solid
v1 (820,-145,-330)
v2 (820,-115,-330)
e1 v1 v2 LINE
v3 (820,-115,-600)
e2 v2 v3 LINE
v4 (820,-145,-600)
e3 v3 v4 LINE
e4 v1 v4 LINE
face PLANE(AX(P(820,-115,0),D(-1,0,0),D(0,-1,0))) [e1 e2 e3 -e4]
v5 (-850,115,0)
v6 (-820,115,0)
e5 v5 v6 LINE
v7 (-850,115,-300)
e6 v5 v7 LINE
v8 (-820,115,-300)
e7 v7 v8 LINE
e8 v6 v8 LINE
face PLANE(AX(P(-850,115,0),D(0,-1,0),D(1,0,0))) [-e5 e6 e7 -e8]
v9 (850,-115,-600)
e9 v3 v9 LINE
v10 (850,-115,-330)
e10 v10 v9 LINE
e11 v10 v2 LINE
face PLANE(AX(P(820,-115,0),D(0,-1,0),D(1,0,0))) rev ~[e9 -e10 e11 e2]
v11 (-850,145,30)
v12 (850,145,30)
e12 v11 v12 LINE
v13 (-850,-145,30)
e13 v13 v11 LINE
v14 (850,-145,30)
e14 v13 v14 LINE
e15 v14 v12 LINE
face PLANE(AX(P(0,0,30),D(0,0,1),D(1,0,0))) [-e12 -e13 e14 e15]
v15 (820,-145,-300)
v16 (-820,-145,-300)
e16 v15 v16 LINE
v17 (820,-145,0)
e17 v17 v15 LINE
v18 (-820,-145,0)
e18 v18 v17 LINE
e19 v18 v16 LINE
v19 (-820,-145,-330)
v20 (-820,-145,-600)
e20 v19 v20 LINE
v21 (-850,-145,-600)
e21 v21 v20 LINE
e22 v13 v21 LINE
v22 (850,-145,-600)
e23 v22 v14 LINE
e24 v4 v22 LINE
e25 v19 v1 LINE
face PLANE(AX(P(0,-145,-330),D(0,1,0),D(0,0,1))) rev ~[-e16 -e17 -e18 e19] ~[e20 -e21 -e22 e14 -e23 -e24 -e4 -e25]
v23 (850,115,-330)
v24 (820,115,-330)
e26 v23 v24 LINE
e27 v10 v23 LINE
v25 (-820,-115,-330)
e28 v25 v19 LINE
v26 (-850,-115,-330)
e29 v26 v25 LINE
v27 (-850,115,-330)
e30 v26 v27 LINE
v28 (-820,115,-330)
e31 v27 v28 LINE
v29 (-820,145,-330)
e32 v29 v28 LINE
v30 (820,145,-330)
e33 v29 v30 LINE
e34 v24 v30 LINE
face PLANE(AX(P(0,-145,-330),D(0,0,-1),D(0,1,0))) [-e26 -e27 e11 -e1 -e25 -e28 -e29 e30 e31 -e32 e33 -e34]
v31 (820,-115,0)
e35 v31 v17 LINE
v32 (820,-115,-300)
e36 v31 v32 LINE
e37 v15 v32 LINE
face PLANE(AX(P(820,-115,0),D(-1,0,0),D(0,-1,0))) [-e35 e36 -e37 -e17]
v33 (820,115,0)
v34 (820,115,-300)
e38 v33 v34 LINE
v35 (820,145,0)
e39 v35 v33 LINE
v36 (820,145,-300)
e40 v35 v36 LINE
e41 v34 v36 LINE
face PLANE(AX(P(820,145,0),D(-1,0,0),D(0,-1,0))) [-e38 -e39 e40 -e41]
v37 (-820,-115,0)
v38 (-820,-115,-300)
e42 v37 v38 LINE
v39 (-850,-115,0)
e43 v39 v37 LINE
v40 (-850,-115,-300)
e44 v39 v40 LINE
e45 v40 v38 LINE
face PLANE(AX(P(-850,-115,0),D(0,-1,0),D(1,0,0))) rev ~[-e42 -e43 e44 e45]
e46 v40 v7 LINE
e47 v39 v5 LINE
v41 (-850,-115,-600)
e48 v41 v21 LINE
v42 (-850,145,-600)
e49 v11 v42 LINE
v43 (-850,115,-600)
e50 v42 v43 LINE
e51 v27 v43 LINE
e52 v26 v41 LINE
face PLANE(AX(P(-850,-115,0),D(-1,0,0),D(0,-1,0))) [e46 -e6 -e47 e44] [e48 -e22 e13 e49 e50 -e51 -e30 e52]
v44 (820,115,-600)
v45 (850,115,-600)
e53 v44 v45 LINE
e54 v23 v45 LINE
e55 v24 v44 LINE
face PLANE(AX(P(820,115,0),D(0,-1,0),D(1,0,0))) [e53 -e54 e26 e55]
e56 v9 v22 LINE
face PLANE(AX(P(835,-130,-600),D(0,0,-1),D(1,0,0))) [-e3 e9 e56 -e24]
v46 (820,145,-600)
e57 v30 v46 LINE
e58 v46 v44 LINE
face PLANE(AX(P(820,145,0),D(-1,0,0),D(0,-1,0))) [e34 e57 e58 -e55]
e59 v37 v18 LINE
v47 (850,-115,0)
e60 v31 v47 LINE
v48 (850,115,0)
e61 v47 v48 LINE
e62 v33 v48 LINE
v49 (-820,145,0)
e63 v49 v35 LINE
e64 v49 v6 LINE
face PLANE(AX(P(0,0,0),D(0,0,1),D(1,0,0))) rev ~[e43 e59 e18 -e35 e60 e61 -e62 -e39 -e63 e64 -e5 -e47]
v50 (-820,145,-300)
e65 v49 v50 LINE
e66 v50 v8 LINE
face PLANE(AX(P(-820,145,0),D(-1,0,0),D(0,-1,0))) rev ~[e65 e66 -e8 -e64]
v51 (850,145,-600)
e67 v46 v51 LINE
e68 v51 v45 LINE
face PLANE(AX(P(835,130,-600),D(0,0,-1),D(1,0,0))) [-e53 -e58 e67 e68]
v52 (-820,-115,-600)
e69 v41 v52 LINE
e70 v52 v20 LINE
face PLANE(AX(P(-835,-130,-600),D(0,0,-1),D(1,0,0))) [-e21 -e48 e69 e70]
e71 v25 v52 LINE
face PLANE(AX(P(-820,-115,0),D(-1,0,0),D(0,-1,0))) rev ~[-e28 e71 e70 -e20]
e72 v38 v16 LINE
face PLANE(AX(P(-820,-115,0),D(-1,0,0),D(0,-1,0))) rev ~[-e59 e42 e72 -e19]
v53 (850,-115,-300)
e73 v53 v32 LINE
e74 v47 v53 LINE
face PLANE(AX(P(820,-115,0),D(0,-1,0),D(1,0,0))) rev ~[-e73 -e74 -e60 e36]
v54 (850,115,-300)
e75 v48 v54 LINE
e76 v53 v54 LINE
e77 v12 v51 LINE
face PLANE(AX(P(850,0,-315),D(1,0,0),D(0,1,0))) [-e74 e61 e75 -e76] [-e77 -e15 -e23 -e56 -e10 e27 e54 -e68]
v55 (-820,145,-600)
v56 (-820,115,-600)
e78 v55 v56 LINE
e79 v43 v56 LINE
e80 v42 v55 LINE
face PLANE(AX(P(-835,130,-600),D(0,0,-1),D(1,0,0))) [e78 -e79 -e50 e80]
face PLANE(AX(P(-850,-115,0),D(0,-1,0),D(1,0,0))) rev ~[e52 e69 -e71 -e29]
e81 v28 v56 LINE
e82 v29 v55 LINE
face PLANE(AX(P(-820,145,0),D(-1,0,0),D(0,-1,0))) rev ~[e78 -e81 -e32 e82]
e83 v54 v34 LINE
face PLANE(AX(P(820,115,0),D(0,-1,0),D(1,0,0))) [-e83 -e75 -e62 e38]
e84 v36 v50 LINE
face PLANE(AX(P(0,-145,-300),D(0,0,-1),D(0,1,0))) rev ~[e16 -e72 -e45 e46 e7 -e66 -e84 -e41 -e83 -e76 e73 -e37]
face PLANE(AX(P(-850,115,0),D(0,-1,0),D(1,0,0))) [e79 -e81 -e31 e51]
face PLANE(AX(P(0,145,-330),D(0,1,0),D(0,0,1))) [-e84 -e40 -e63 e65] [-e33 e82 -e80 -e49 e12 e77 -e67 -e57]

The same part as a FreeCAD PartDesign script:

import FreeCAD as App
import Part
import Sketcher
from FreeCAD import Vector

doc = App.newDocument("Part")
params = doc.addObject("Spreadsheet::Sheet", "Params")
for row, (alias, value) in enumerate([
    ("sketch1_width", "1700 mm"),
    ("sketch1_height", "290 mm"),
    ("pad1_length", "30 mm"),
    ("sketch2_width", "30 mm"),
    ("pad2_length", "600 mm"),
    ("sketch3_width", "290 mm"),
    ("sketch3_height", "30 mm"),
    ("pad3_length", "850 mm"),
    ("pad3_length2", "850 mm"),
], start=1):
    params.set(f"A{row}", alias)
    params.set(f"B{row}", "=" + value)
    params.setAlias(f"B{row}", alias)

body = doc.addObject("PartDesign::Body", "Body")

# Sketch on XY plane
sketch1 = body.newObject("Sketcher::SketchObject", "Sketch")
sketch1.AttachmentSupport = (doc.getObject("XY_Plane"), [""])
sketch1.MapMode = "FlatFace"
sketch1.addGeometry(Part.LineSegment(Vector(-850, 145, 0), Vector(-850, -145, 0)), False)
sketch1.addGeometry(Part.LineSegment(Vector(-850, -145, 0), Vector(850, -145, 0)), False)
sketch1.addGeometry(Part.LineSegment(Vector(850, -145, 0), Vector(850, 145, 0)), False)
sketch1.addGeometry(Part.LineSegment(Vector(850, 145, 0), Vector(-850, 145, 0)), False)
sketch1.addConstraint(Sketcher.Constraint("Coincident", 0, 2, 1, 1))
sketch1.addConstraint(Sketcher.Constraint("Coincident", 1, 2, 2, 1))
sketch1.addConstraint(Sketcher.Constraint("Coincident", 2, 2, 3, 1))
sketch1.addConstraint(Sketcher.Constraint("Coincident", 3, 2, 0, 1))
sketch1.addConstraint(Sketcher.Constraint("Vertical", 0))
sketch1.addConstraint(Sketcher.Constraint("Horizontal", 1))
sketch1.addConstraint(Sketcher.Constraint("Vertical", 2))
sketch1.addConstraint(Sketcher.Constraint("Horizontal", 3))
sketch1.addConstraint(Sketcher.Constraint("Symmetric", 0, 2, 2, 2, -1, 1))
sketch1.addConstraint(Sketcher.Constraint("DistanceX", 1, 1, 1, 2, 1700.0))
sketch1.addConstraint(Sketcher.Constraint("DistanceY", 0, 2, 0, 1, 290.0))
sketch1.setExpression("Constraints[9]", "Params.sketch1_width")
sketch1.setExpression("Constraints[10]", "Params.sketch1_height")
pad1 = body.newObject("PartDesign::Pad", "Pad")
pad1.Profile = sketch1
pad1.setExpression("Length", "Params.pad1_length")

# Sketch on XY plane
sketch2 = body.newObject("Sketcher::SketchObject", "Sketch001")
sketch2.AttachmentSupport = (doc.getObject("XY_Plane"), [""])
sketch2.MapMode = "FlatFace"
sketch2.addGeometry(Part.LineSegment(Vector(-850, -145, 0), Vector(-850, -115, 0)), False)
sketch2.addGeometry(Part.LineSegment(Vector(-850, -115, 0), Vector(-820, -115, 0)), False)
sketch2.addGeometry(Part.LineSegment(Vector(-820, -115, 0), Vector(-820, -145, 0)), False)
sketch2.addGeometry(Part.LineSegment(Vector(-820, -145, 0), Vector(-850, -145, 0)), False)
sketch2.addGeometry(Part.LineSegment(Vector(820, -145, 0), Vector(820, -115, 0)), False)
sketch2.addGeometry(Part.LineSegment(Vector(820, -115, 0), Vector(850, -115, 0)), False)
sketch2.addGeometry(Part.LineSegment(Vector(850, -115, 0), Vector(850, -145, 0)), False)
sketch2.addGeometry(Part.LineSegment(Vector(850, -145, 0), Vector(820, -145, 0)), False)
sketch2.addGeometry(Part.LineSegment(Vector(820, 115, 0), Vector(820, 145, 0)), False)
sketch2.addGeometry(Part.LineSegment(Vector(820, 145, 0), Vector(850, 145, 0)), False)
sketch2.addGeometry(Part.LineSegment(Vector(850, 145, 0), Vector(850, 115, 0)), False)
sketch2.addGeometry(Part.LineSegment(Vector(850, 115, 0), Vector(820, 115, 0)), False)
sketch2.addGeometry(Part.LineSegment(Vector(-850, 115, 0), Vector(-850, 145, 0)), False)
sketch2.addGeometry(Part.LineSegment(Vector(-850, 145, 0), Vector(-820, 145, 0)), False)
sketch2.addGeometry(Part.LineSegment(Vector(-820, 145, 0), Vector(-820, 115, 0)), False)
sketch2.addGeometry(Part.LineSegment(Vector(-820, 115, 0), Vector(-850, 115, 0)), False)
sketch2.addConstraint(Sketcher.Constraint("Coincident", 0, 2, 1, 1))
sketch2.addConstraint(Sketcher.Constraint("Coincident", 1, 2, 2, 1))
sketch2.addConstraint(Sketcher.Constraint("Coincident", 2, 2, 3, 1))
sketch2.addConstraint(Sketcher.Constraint("Coincident", 3, 2, 0, 1))
sketch2.addConstraint(Sketcher.Constraint("Coincident", 4, 2, 5, 1))
sketch2.addConstraint(Sketcher.Constraint("Coincident", 5, 2, 6, 1))
sketch2.addConstraint(Sketcher.Constraint("Coincident", 6, 2, 7, 1))
sketch2.addConstraint(Sketcher.Constraint("Coincident", 7, 2, 4, 1))
sketch2.addConstraint(Sketcher.Constraint("Coincident", 8, 2, 9, 1))
sketch2.addConstraint(Sketcher.Constraint("Coincident", 9, 2, 10, 1))
sketch2.addConstraint(Sketcher.Constraint("Coincident", 10, 2, 11, 1))
sketch2.addConstraint(Sketcher.Constraint("Coincident", 11, 2, 8, 1))
sketch2.addConstraint(Sketcher.Constraint("Coincident", 12, 2, 13, 1))
sketch2.addConstraint(Sketcher.Constraint("Coincident", 13, 2, 14, 1))
sketch2.addConstraint(Sketcher.Constraint("Coincident", 14, 2, 15, 1))
sketch2.addConstraint(Sketcher.Constraint("Coincident", 15, 2, 12, 1))
sketch2.addConstraint(Sketcher.Constraint("Vertical", 0))
sketch2.addConstraint(Sketcher.Constraint("Horizontal", 1))
sketch2.addConstraint(Sketcher.Constraint("Vertical", 2))
sketch2.addConstraint(Sketcher.Constraint("Horizontal", 3))
sketch2.addConstraint(Sketcher.Constraint("Vertical", 4))
sketch2.addConstraint(Sketcher.Constraint("Horizontal", 5))
sketch2.addConstraint(Sketcher.Constraint("Vertical", 6))
sketch2.addConstraint(Sketcher.Constraint("Horizontal", 7))
sketch2.addConstraint(Sketcher.Constraint("Vertical", 8))
sketch2.addConstraint(Sketcher.Constraint("Horizontal", 9))
sketch2.addConstraint(Sketcher.Constraint("Vertical", 10))
sketch2.addConstraint(Sketcher.Constraint("Horizontal", 11))
sketch2.addConstraint(Sketcher.Constraint("Vertical", 12))
sketch2.addConstraint(Sketcher.Constraint("Horizontal", 13))
sketch2.addConstraint(Sketcher.Constraint("Vertical", 14))
sketch2.addConstraint(Sketcher.Constraint("Horizontal", 15))
sketch2.addConstraint(Sketcher.Constraint("Symmetric", 2, 2, 8, 2, -1, 1))
sketch2.addConstraint(Sketcher.Constraint("Symmetric", 0, 2, 10, 2, -1, 1))
sketch2.addConstraint(Sketcher.Constraint("Symmetric", 6, 2, 12, 2, -1, 1))
sketch2.addConstraint(Sketcher.Constraint("Symmetric", 4, 2, 14, 2, -1, 1))
sketch2.addConstraint(Sketcher.Constraint("Symmetric", 1, 2, 4, 2, -2))
sketch2.addConstraint(Sketcher.Constraint("Symmetric", 3, 2, 6, 2, -2))
sketch2.addConstraint(Sketcher.Constraint("Equal", 15, 0))
sketch2.addConstraint(Sketcher.Constraint("DistanceX", 1, 1, 1, 2, 30.0))
sketch2.addConstraint(Sketcher.Constraint("DistanceX", 0, 2, -1, 1, 850.0))
sketch2.addConstraint(Sketcher.Constraint("DistanceY", 0, 2, -1, 1, 115.0))
sketch2.setExpression("Constraints[39]", "Params.sketch2_width")
pad2 = body.newObject("PartDesign::Pad", "Pad001")
pad2.Profile = sketch2
pad2.setExpression("Length", "Params.pad2_length")
pad2.Reversed = True

# Sketch on YZ plane
sketch3 = body.newObject("Sketcher::SketchObject", "Sketch002")
sketch3.AttachmentSupport = (doc.getObject("YZ_Plane"), [""])
sketch3.MapMode = "FlatFace"
sketch3.addGeometry(Part.LineSegment(Vector(-145, -300, 0), Vector(-145, -330, 0)), False)
sketch3.addGeometry(Part.LineSegment(Vector(-145, -330, 0), Vector(145, -330, 0)), False)
sketch3.addGeometry(Part.LineSegment(Vector(145, -330, 0), Vector(145, -300, 0)), False)
sketch3.addGeometry(Part.LineSegment(Vector(145, -300, 0), Vector(-145, -300, 0)), False)
sketch3.addConstraint(Sketcher.Constraint("Coincident", 0, 2, 1, 1))
sketch3.addConstraint(Sketcher.Constraint("Coincident", 1, 2, 2, 1))
sketch3.addConstraint(Sketcher.Constraint("Coincident", 2, 2, 3, 1))
sketch3.addConstraint(Sketcher.Constraint("Coincident", 3, 2, 0, 1))
sketch3.addConstraint(Sketcher.Constraint("Vertical", 0))
sketch3.addConstraint(Sketcher.Constraint("Horizontal", 1))
sketch3.addConstraint(Sketcher.Constraint("Vertical", 2))
sketch3.addConstraint(Sketcher.Constraint("Horizontal", 3))
sketch3.addConstraint(Sketcher.Constraint("DistanceX", 1, 1, 1, 2, 290.0))
sketch3.addConstraint(Sketcher.Constraint("DistanceY", 0, 2, 0, 1, 30.0))
sketch3.addConstraint(Sketcher.Constraint("DistanceX", 0, 2, -1, 1, 145.0))
sketch3.addConstraint(Sketcher.Constraint("DistanceY", 0, 2, -1, 1, 330.0))
sketch3.setExpression("Constraints[8]", "Params.sketch3_width")
sketch3.setExpression("Constraints[9]", "Params.sketch3_height")
pad3 = body.newObject("PartDesign::Pad", "Pad002")
pad3.Profile = sketch3
pad3.Type = "TwoLengths"
pad3.setExpression("Length", "Params.pad3_length")
pad3.setExpression("Length2", "Params.pad3_length2")

doc.recompute()
